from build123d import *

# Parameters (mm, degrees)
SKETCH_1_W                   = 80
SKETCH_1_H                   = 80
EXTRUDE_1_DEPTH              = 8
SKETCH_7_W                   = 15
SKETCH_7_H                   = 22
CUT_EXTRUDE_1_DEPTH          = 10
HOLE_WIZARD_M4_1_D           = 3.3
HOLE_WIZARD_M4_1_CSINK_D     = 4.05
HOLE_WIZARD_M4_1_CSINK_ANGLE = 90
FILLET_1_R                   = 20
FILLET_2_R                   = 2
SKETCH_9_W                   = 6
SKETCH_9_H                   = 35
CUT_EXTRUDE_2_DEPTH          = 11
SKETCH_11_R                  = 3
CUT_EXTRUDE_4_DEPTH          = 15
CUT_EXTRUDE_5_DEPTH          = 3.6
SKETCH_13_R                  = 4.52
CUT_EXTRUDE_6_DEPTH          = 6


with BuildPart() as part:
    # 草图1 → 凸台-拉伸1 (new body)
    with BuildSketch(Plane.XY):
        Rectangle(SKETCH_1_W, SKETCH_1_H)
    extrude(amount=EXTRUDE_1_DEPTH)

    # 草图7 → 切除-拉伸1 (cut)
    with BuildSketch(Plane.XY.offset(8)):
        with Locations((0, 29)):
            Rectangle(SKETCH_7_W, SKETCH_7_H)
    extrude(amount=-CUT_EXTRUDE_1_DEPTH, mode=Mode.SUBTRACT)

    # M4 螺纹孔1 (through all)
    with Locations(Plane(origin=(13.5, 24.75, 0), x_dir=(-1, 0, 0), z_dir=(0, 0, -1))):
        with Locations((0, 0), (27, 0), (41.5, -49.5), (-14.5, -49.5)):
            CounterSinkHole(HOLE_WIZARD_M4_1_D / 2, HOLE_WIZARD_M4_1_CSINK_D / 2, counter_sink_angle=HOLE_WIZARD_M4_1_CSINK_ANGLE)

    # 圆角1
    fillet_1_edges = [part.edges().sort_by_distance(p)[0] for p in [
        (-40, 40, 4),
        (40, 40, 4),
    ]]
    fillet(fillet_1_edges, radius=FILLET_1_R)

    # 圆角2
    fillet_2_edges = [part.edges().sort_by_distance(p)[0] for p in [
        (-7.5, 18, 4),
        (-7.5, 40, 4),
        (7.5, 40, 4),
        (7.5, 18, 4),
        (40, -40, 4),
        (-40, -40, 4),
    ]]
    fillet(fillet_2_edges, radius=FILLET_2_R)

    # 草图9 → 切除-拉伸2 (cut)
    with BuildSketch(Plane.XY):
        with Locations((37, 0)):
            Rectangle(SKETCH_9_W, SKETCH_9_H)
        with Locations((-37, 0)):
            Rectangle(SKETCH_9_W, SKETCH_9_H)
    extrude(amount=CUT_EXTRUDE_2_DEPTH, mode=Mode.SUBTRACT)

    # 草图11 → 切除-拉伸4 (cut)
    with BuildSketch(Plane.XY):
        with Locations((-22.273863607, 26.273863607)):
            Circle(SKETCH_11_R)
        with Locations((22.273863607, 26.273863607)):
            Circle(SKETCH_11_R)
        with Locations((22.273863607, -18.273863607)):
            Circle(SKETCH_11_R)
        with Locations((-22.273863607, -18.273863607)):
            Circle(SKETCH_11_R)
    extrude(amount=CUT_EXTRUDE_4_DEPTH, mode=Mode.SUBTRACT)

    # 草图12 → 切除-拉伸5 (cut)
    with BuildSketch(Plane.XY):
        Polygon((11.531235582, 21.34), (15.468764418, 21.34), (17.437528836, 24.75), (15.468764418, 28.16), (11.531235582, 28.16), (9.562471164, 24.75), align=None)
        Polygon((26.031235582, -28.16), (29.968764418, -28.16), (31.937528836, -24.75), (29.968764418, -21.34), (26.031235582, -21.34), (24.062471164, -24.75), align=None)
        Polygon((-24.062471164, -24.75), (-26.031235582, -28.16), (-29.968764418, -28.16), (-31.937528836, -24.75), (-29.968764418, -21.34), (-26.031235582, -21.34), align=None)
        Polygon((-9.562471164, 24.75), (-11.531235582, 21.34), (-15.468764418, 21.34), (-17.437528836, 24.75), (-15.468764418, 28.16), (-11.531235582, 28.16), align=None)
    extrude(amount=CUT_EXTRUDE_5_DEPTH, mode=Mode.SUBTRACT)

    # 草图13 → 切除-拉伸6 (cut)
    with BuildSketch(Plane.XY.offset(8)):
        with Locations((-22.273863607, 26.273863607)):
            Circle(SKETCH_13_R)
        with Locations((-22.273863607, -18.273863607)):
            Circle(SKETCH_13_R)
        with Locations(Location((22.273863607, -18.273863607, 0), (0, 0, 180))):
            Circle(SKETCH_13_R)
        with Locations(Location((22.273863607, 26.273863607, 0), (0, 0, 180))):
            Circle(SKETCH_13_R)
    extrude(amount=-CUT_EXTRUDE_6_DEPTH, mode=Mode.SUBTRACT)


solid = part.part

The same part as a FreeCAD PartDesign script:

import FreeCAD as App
import Part
import Sketcher
Q = App.Units.Quantity


def edges_at(feature, points):
    """Names of the edges that pass closest to the given points."""
    edges = feature.Shape.Edges
    near = lambda p: min(range(len(edges)), key=lambda i: edges[i].distToShape(Part.Vertex(*p))[0])
    return sorted({f"Edge{near(p) + 1}" for p in points})


def add_polygon(sketch, points):
    """Adds a closed chain of lines whose ends are joined by coincident constraints."""
    first, n = sketch.GeometryCount, len(points)
    for a, b in zip(points, points[1:] + points[:1]):
        sketch.addGeometry(Part.LineSegment(App.Vector(*a, 0), App.Vector(*b, 0)), False)
    for i in range(n):
        sketch.addConstraint(Sketcher.Constraint("Coincident", first + i, 2, first + (i + 1) % n, 1))

doc = App.newDocument("Part")
body = doc.addObject("PartDesign::Body", "Body")

# Sketch on XY plane
sketch1 = body.newObject("Sketcher::SketchObject", "Sketch")
sketch1.AttachmentSupport = (doc.getObject("XY_Plane"), [""])
sketch1.MapMode = "FlatFace"
add_polygon(sketch1, [(-40, 40), (-40, -40), (40, -40), (40, 40)])  # lines 0-3
sketch1.addConstraint([
    Sketcher.Constraint("Vertical", 0),
    Sketcher.Constraint("Horizontal", 1),
    Sketcher.Constraint("Vertical", 2),
    Sketcher.Constraint("Horizontal", 3),
    Sketcher.Constraint("Symmetric", 0, 2, 2, 2, -1, 1),
    Sketcher.Constraint("Equal", 3, 0),
    Sketcher.Constraint("DistanceX", 1, 1, 1, 2, 80.0),
])
pad1 = body.newObject("PartDesign::Pad", "Pad")
pad1.Profile = sketch1
pad1.Length = 8

# Sketch on XY plane
sketch2 = body.newObject("Sketcher::SketchObject", "Sketch001")
sketch2.AttachmentSupport = (doc.getObject("XY_Plane"), [""])
sketch2.MapMode = "FlatFace"
sketch2.AttachmentOffset = App.Placement(App.Vector(0, 0, 8), App.Rotation())
add_polygon(sketch2, [(-8, 40), (-8, 18), (8, 18), (8, 40)])  # lines 0-3
sketch2.addConstraint([
    Sketcher.Constraint("Vertical", 0),
    Sketcher.Constraint("Horizontal", 1),
    Sketcher.Constraint("Vertical", 2),
    Sketcher.Constraint("Horizontal", 3),
    Sketcher.Constraint("DistanceX", 1, 1, 1, 2, 15.0),
    Sketcher.Constraint("DistanceY", 0, 2, 0, 1, 22.0),
    Sketcher.Constraint("DistanceY", -1, 1, 0, 2, 18.0),
    Sketcher.Constraint("DistanceX", 0, 2, -1, 1, 7.5),
])
pocket1 = body.newObject("PartDesign::Pocket", "Pocket")
pocket1.Profile = sketch2
pocket1.Length = 10

# Sketch on XY plane
sketch3 = body.newObject("Sketcher::SketchObject", "Sketch002")
sketch3.AttachmentSupport = (doc.getObject("XY_Plane"), [""])
sketch3.MapMode = "FlatFace"
sketch3.addGeometry([
    Part.Circle(App.Vector(13.5, 24.8, 0), App.Vector(0, 0, 1), 1.6),
    Part.Circle(App.Vector(-13.5, 24.8, 0), App.Vector(0, 0, 1), 1.6),
    Part.Circle(App.Vector(-28, -24.8, 0), App.Vector(0, 0, 1), 1.6),
    Part.Circle(App.Vector(28, -24.8, 0), App.Vector(0, 0, 1), 1.6),
], False)
sketch3.addConstraint([
    Sketcher.Constraint("Equal", 0, 1),
    Sketcher.Constraint("Equal", 1, 2),
    Sketcher.Constraint("Equal", 2, 3),
    Sketcher.Constraint("Symmetric", 0, 3, 1, 3, -2),
    Sketcher.Constraint("Symmetric", 2, 3, 3, 3, -2),
    Sketcher.Constraint("Diameter", 0, 3.3),
    Sketcher.Constraint("DistanceX", 2, 3, -1, 1, 28.0),
    Sketcher.Constraint("DistanceX", 1, 3, 0, 3, 27.0),
    Sketcher.Constraint("DistanceY", 2, 3, 1, 3, 49.5),
    Sketcher.Constraint("DistanceY", -1, 1, 0, 3, 24.75),
])
doc.recompute()
hole = body.newObject("PartDesign::Hole", "Hole")
hole.Profile = sketch3
hole.ThreadType = "None"
hole.Diameter = 3.3
hole.DepthType = "ThroughAll"
hole.HoleCutType = "Countersink"
hole.HoleCutDiameter = 4.05
hole.HoleCutCountersinkAngle = 90
hole.Reversed = True
doc.recompute()

fillet = body.newObject("PartDesign::Fillet", "Fillet")
fillet.Base = (hole, edges_at(hole, [(-40, 40, 4), (40, 40, 4)]))
fillet.Radius = 20
doc.recompute()

fillet2 = body.newObject("PartDesign::Fillet", "Fillet001")
fillet2.Base = (fillet, edges_at(fillet, [
    (-7.5, 18, 4),
    (-7.5, 40, 4),
    (7.5, 40, 4),
    (7.5, 18, 4),
    (40, -40, 4),
    (-40, -40, 4),
]))
fillet2.Radius = 2

# Sketch on XY plane
sketch4 = body.newObject("Sketcher::SketchObject", "Sketch003")
sketch4.AttachmentSupport = (doc.getObject("XY_Plane"), [""])
sketch4.MapMode = "FlatFace"
add_polygon(sketch4, [(34, 18), (34, -18), (40, -18), (40, 18)])  # lines 0-3
add_polygon(sketch4, [(-40, 18), (-40, -18), (-34, -18), (-34, 18)])  # lines 4-7
sketch4.addConstraint([
    Sketcher.Constraint("Vertical", 0),
    Sketcher.Constraint("Horizontal", 1),
    Sketcher.Constraint("Vertical", 2),
    Sketcher.Constraint("Horizontal", 3),
    Sketcher.Constraint("Vertical", 4),
    Sketcher.Constraint("Horizontal", 5),
    Sketcher.Constraint("Vertical", 6),
    Sketcher.Constraint("Horizontal", 7),
    Sketcher.Constraint("Symmetric", 2, 2, 4, 2, -1, 1),
    Sketcher.Constraint("Symmetric", 0, 2, 6, 2, -1, 1),
    Sketcher.Constraint("Horizontal", 1, 2, 4, 2),
    Sketcher.Constraint("DistanceX", 1, 1, 1, 2, 6.0),
    Sketcher.Constraint("DistanceY", 0, 2, 0, 1, 35.0),
    Sketcher.Constraint("DistanceX", -1, 1, 0, 2, 34.0),
])
pocket2 = body.newObject("PartDesign::Pocket", "Pocket001")
pocket2.Profile = sketch4
pocket2.Length = 11
pocket2.Reversed = True

# Sketch on XY plane
sketch5 = body.newObject("Sketcher::SketchObject", "Sketch004")
sketch5.AttachmentSupport = (doc.getObject("XY_Plane"), [""])
sketch5.MapMode = "FlatFace"
sketch5.addGeometry([
    Part.Circle(App.Vector(-22.3, 26.3, 0), App.Vector(0, 0, 1), 3),
    Part.Circle(App.Vector(22.3, 26.3, 0), App.Vector(0, 0, 1), 3),
    Part.Circle(App.Vector(22.3, -18.3, 0), App.Vector(0, 0, 1), 3),
    Part.Circle(App.Vector(-22.3, -18.3, 0), App.Vector(0, 0, 1), 3),
], False)
sketch5.addConstraint([
    Sketcher.Constraint("Equal", 0, 1),
    Sketcher.Constraint("Equal", 1, 2),
    Sketcher.Constraint("Equal", 2, 3),
    Sketcher.Constraint("Symmetric", 0, 3, 1, 3, -2),
    Sketcher.Constraint("Symmetric", 2, 3, 3, 3, -2),
    Sketcher.Constraint("Vertical", 1, 3, 2, 3),
    Sketcher.Constraint("Diameter", 0, 6.0),
    Sketcher.Constraint("DistanceX", 0, 3, -1, 1, 22.273864),
    Sketcher.Constraint("DistanceY", -1, 1, 0, 3, 26.273864),
    Sketcher.Constraint("DistanceY", 2, 3, -1, 1, 18.273864),
])
pocket3 = body.newObject("PartDesign::Pocket", "Pocket002")
pocket3.Profile = sketch5
pocket3.Length = 15
pocket3.Reversed = True

# Sketch on XY plane
sketch6 = body.newObject("Sketcher::SketchObject", "Sketch005")
sketch6.AttachmentSupport = (doc.getObject("XY_Plane"), [""])
sketch6.MapMode = "FlatFace"
add_polygon(sketch6, [(11.5, 21.3), (15.5, 21.3), (17.4, 24.8), (15.5, 28.2), (11.5, 28.2), (9.6, 24.8)])  # lines 0-5
add_polygon(sketch6, [(26, -28.2), (30, -28.2), (31.9, -24.8), (30, -21.3), (26, -21.3), (24.1, -24.8)])  # lines 6-11
add_polygon(sketch6, [(-26, -28.2), (-24.1, -24.8), (-26, -21.3), (-30, -21.3), (-31.9, -24.8), (-30, -28.2)])  # lines 12-17
add_polygon(sketch6, [(-11.5, 21.3), (-9.6, 24.8), (-11.5, 28.2), (-15.5, 28.2), (-17.4, 24.8), (-15.5, 21.3)])  # lines 18-23
sketch6.addConstraint([
    Sketcher.Constraint("Horizontal", 0),
    Sketcher.Constraint("Horizontal", 3),
    Sketcher.Constraint("Horizontal", 6),
    Sketcher.Constraint("Horizontal", 9),
    Sketcher.Constraint("Horizontal", 14),
    Sketcher.Constraint("Horizontal", 17),
    Sketcher.Constraint("Horizontal", 20),
    Sketcher.Constraint("Horizontal", 23),
    Sketcher.Constraint("Symmetric", 10, 2, 12, 2, -2),
    Sketcher.Constraint("Symmetric", 9, 2, 13, 2, -2),
    Sketcher.Constraint("Symmetric", 7, 2, 15, 2, -2),
    Sketcher.Constraint("Symmetric", 6, 2, 16, 2, -2),
    Sketcher.Constraint("Symmetric", 4, 2, 18, 2, -2),
    Sketcher.Constraint("Symmetric", 3, 2, 19, 2, -2),
    Sketcher.Constraint("Symmetric", 1, 2, 21, 2, -2),
    Sketcher.Constraint("Symmetric", 0, 2, 22, 2, -2),
    Sketcher.Constraint("Parallel", 1, 4),
    Sketcher.Constraint("Parallel", 2, 5),
    Sketcher.Constraint("Parallel", 4, 7),
    Sketcher.Constraint("Parallel", 5, 8),
    Sketcher.Constraint("Parallel", 7, 10),
    Sketcher.Constraint("Parallel", 8, 11),
    Sketcher.Constraint("Parallel", 10, 12),
    Sketcher.Constraint("Parallel", 11, 13),
    Sketcher.Constraint("Parallel", 12, 15),
    Sketcher.Constraint("Parallel", 15, 18),
    Sketcher.Constraint("Parallel", 18, 21),
    Sketcher.Constraint("Horizontal", 1, 2, 4, 2),
    Sketcher.Constraint("Horizontal", 7, 2, 10, 2),
    Sketcher.Constraint("Vertical", 0, 2, 2, 2),
    Sketcher.Constraint("Vertical", 6, 2, 8, 2),
    Sketcher.Constraint("Equal", 3, 6),
    Sketcher.Constraint("Equal", 5, 7),
    Sketcher.Constraint("Angle", 1, Q("60 deg")),
    Sketcher.Constraint("DistanceX", 13, 2, 8, 2, 56.0),
    Sketcher.Constraint("DistanceX", 19, 2, 2, 2, 27.0),
    Sketcher.Constraint("DistanceY", 6, 2, 0, 2, 49.5),
    Sketcher.Constraint("DistanceY", -1, 1, 0, 2, 21.34),
    Sketcher.Constraint("DistanceY", -1, 1, 1, 2, 24.75),
    Sketcher.Constraint("DistanceX", 0, 1, 0, 2, 3.937529),
])
pocket4 = body.newObject("PartDesign::Pocket", "Pocket003")
pocket4.Profile = sketch6
pocket4.Length = 3.6
pocket4.Reversed = True

# Sketch on XY plane
sketch7 = body.newObject("Sketcher::SketchObject", "Sketch006")
sketch7.AttachmentSupport = (doc.getObject("XY_Plane"), [""])
sketch7.MapMode = "FlatFace"
sketch7.AttachmentOffset = App.Placement(App.Vector(0, 0, 8), App.Rotation())
sketch7.addGeometry([
    Part.Circle(App.Vector(-22.3, 26.3, 0), App.Vector(0, 0, 1), 4.5),
    Part.Circle(App.Vector(-22.3, -18.3, 0), App.Vector(0, 0, 1), 4.5),
    Part.Circle(App.Vector(22.3, -18.3, 0), App.Vector(0, 0, 1), 4.5),
    Part.Circle(App.Vector(22.3, 26.3, 0), App.Vector(0, 0, 1), 4.5),
], False)
sketch7.addConstraint([
    Sketcher.Constraint("Equal", 0, 1),
    Sketcher.Constraint("Equal", 1, 2),
    Sketcher.Constraint("Equal", 2, 3),
    Sketcher.Constraint("Symmetric", 1, 3, 2, 3, -2),
    Sketcher.Constraint("Symmetric", 0, 3, 3, 3, -2),
    Sketcher.Constraint("Vertical", 0, 3, 1, 3),
    Sketcher.Constraint("Diameter", 0, 9.04),
    Sketcher.Constraint("DistanceX", 0, 3, -1, 1, 22.273864),
    Sketcher.Constraint("DistanceY", -1, 1, 0, 3, 26.273864),
    Sketcher.Constraint("DistanceY", 1, 3, -1, 1, 18.273864),
])
pocket5 = body.newObject("PartDesign::Pocket", "Pocket004")
pocket5.Profile = sketch7
pocket5.Length = 6

doc.recompute()
